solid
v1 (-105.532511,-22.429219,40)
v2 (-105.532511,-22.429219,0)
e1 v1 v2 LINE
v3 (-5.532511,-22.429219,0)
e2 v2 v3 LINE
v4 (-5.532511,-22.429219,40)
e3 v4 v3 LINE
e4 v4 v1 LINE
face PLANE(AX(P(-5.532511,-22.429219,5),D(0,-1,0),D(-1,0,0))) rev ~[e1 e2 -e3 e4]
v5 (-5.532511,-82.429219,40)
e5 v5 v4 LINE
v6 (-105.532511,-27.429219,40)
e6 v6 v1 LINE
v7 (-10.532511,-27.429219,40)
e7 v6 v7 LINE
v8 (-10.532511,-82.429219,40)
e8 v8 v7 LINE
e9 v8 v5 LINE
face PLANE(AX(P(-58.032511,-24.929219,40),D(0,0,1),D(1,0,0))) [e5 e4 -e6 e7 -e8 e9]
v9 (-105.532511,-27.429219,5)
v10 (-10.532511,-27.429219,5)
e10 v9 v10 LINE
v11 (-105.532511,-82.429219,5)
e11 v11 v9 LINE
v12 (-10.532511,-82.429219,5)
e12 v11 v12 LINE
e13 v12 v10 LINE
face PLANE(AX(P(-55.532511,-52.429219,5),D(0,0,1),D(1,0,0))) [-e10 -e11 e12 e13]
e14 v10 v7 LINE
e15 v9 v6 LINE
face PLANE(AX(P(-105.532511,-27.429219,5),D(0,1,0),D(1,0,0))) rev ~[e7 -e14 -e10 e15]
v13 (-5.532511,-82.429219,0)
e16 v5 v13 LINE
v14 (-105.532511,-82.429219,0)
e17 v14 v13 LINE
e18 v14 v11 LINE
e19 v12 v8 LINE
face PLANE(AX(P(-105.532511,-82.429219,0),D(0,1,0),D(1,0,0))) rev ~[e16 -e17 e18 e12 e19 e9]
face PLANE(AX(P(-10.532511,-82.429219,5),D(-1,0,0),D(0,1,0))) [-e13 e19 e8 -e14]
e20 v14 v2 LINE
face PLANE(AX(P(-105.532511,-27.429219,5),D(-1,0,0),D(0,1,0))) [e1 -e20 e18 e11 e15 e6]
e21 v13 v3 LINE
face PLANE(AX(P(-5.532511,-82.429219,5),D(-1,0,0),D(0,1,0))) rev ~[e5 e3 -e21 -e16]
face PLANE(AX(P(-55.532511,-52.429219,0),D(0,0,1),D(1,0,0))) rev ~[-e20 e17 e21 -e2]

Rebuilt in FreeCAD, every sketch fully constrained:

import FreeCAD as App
import Part
import Sketcher
from FreeCAD import Vector
Q = App.Units.Quantity


def add_polygon(sketch, points):
    """Adds a closed chain of lines whose ends are joined by coincident constraints."""
    first, n = sketch.GeometryCount, len(points)
    for a, b in zip(points, points[1:] + points[:1]):
        sketch.addGeometry(Part.LineSegment(App.Vector(*a, 0), App.Vector(*b, 0)), False)
    for i in range(n):
        sketch.addConstraint(Sketcher.Constraint("Coincident", first + i, 2, first + (i + 1) % n, 1))

doc = App.newDocument("Part")
body = doc.addObject("PartDesign::Body", "Body")

sketch1 = body.newObject("Sketcher::SketchObject", "Sketch")
sketch1.AttachmentSupport = (doc.getObject("XY_Plane"), [""])
sketch1.MapMode = "FlatFace"
add_polygon(sketch1, [(-106, -22), (-106, -82), (-6, -82), (-6, -22)])
sketch1.addConstraint([
    Sketcher.Constraint("Vertical", 0),
    Sketcher.Constraint("Horizontal", 1),
    Sketcher.Constraint("Vertical", 2),
    Sketcher.Constraint("Horizontal", 3),
    Sketcher.Constraint("DistanceX", 1, 1, 1, 2, Q("100 mm")),
    Sketcher.Constraint("DistanceY", 0, 2, 0, 1, Q("60 mm")),
    Sketcher.Constraint("DistanceX", 0, 2, -1, 1, Q("105.532511 mm")),
    Sketcher.Constraint("DistanceY", 0, 2, -1, 1, Q("82.429219 mm")),
])
pad1 = body.newObject("PartDesign::Pad", "Pad")
pad1.Profile = sketch1
pad1.Length = 5

sketch2 = body.newObject("Sketcher::SketchObject", "Sketch001")
sketch2.AttachmentSupport = (doc.getObject("XY_Plane"), [""])
sketch2.MapMode = "FlatFace"
sketch2.AttachmentOffset = App.Placement(Vector(0, 0, 5), App.Rotation())
add_polygon(sketch2, [(-105.5, -22.4), (-105.5, -27.4), (-10.5, -27.4), (-10.5, -82.4), (-5.5, -82.4), (-5.5, -22.4)])
sketch2.addConstraint([
    Sketcher.Constraint("Vertical", 0),
    Sketcher.Constraint("Horizontal", 1),
    Sketcher.Constraint("Vertical", 2),
    Sketcher.Constraint("Horizontal", 3),
    Sketcher.Constraint("Vertical", 4),
    Sketcher.Constraint("Horizontal", 5),
    Sketcher.Constraint("Equal", 3, 0),
    Sketcher.Constraint("DistanceX", 1, 1, 1, 2, Q("95 mm")),
    Sketcher.Constraint("DistanceX", 3, 1, 3, 2, Q("5 mm")),
    Sketcher.Constraint("DistanceY", 2, 2, 2, 1, Q("55 mm")),
    Sketcher.Constraint("DistanceX", 0, 2, -1, 1, Q("105.532511 mm")),
    Sketcher.Constraint("DistanceY", 0, 2, -1, 1, Q("27.429219 mm")),
])
pad2 = body.newObject("PartDesign::Pad", "Pad001")
pad2.Profile = sketch2
pad2.Length = 35

doc.recompute()
